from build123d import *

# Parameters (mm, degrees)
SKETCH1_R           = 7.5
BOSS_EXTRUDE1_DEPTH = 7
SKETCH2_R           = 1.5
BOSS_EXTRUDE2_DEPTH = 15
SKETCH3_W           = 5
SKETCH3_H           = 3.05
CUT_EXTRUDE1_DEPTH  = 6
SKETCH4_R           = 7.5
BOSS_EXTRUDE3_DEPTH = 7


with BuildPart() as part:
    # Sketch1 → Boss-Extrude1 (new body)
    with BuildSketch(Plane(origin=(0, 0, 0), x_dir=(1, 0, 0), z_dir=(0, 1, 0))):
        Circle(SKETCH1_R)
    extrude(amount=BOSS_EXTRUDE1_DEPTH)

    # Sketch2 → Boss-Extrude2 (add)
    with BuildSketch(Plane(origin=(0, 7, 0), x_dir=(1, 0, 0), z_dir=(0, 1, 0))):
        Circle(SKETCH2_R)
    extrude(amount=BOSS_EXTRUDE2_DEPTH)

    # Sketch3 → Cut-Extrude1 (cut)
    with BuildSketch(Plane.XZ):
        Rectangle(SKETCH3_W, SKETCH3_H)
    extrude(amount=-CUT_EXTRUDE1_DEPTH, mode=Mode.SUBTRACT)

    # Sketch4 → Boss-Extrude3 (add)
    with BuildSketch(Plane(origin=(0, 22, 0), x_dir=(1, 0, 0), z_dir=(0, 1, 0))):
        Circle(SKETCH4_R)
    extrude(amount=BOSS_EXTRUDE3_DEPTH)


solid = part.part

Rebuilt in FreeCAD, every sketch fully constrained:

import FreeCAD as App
import Part
import Sketcher

V = App.Vector
Q = App.Units.Quantity

doc = App.newDocument("Part")
body = doc.addObject("PartDesign::Body", "Body")

# Sketch on XZ plane
sketch1 = doc.addObject("Sketcher::SketchObject", "Sketch")
body.addObject(sketch1)
sketch1.AttachmentSupport = (doc.XZ_Plane, [""])
sketch1.MapMode = "FlatFace"
sketch1.addGeometry(Part.Circle(V(0, 0, 0), V(0, 0, 1), 8), False)
sketch1.addConstraint([
    Sketcher.Constraint("Coincident", 0, 3, -1, 1),
    Sketcher.Constraint("Diameter", 0, Q("15 mm")),
])
pad1 = doc.addObject("PartDesign::Pad", "Pad")
body.addObject(pad1)
pad1.Profile = sketch1
pad1.Length = 7
pad1.Reversed = True

# Sketch on XZ plane
sketch2 = doc.addObject("Sketcher::SketchObject", "Sketch001")
body.addObject(sketch2)
sketch2.AttachmentSupport = (doc.XZ_Plane, [""])
sketch2.MapMode = "FlatFace"
sketch2.AttachmentOffset = App.Placement(V(0, 0, -7), App.Rotation())
sketch2.addGeometry(Part.Circle(V(0, 0, 0), V(0, 0, 1), 1.5), False)
sketch2.addConstraint([
    Sketcher.Constraint("Coincident", 0, 3, -1, 1),
    Sketcher.Constraint("Diameter", 0, Q("3 mm")),
])
pad2 = doc.addObject("PartDesign::Pad", "Pad001")
body.addObject(pad2)
pad2.Profile = sketch2
pad2.Length = 15
pad2.Reversed = True

# Sketch on XZ plane
sketch3 = doc.addObject("Sketcher::SketchObject", "Sketch002")
body.addObject(sketch3)
sketch3.AttachmentSupport = (doc.XZ_Plane, [""])
sketch3.MapMode = "FlatFace"
sketch3.addGeometry([
    Part.LineSegment(V(-2.5, 1.5, 0), V(-2.5, -1.5, 0)),
    Part.LineSegment(V(-2.5, -1.5, 0), V(2.5, -1.5, 0)),
    Part.LineSegment(V(2.5, -1.5, 0), V(2.5, 1.5, 0)),
    Part.LineSegment(V(2.5, 1.5, 0), V(-2.5, 1.5, 0)),
], False)
sketch3.addConstraint([
    Sketcher.Constraint("Coincident", 0, 2, 1, 1),
    Sketcher.Constraint("Coincident", 1, 2, 2, 1),
    Sketcher.Constraint("Coincident", 2, 2, 3, 1),
    Sketcher.Constraint("Coincident", 3, 2, 0, 1),
    Sketcher.Constraint("Vertical", 0),
    Sketcher.Constraint("Horizontal", 1),
    Sketcher.Constraint("Vertical", 2),
    Sketcher.Constraint("Horizontal", 3),
    Sketcher.Constraint("Symmetric", 0, 2, 2, 2, -1, 1),
    Sketcher.Constraint("DistanceX", 1, 1, 1, 2, Q("5 mm")),
    Sketcher.Constraint("DistanceY", 0, 2, 0, 1, Q("3.05 mm")),
])
pocket1 = doc.addObject("PartDesign::Pocket", "Pocket")
body.addObject(pocket1)
pocket1.Profile = sketch3
pocket1.Length = 6

# Sketch on XZ plane
sketch4 = doc.addObject("Sketcher::SketchObject", "Sketch003")
body.addObject(sketch4)
sketch4.AttachmentSupport = (doc.XZ_Plane, [""])
sketch4.MapMode = "FlatFace"
sketch4.AttachmentOffset = App.Placement(V(0, 0, -22), App.Rotation())
sketch4.addGeometry(Part.Circle(V(0, 0, 0), V(0, 0, 1), 8), False)
sketch4.addConstraint([
    Sketcher.Constraint("Coincident", 0, 3, -1, 1),
    Sketcher.Constraint("Diameter", 0, Q("15 mm")),
])
pad3 = doc.addObject("PartDesign::Pad", "Pad002")
body.addObject(pad3)
pad3.Profile = sketch4
pad3.Length = 7
pad3.Reversed = True

doc.recompute()
